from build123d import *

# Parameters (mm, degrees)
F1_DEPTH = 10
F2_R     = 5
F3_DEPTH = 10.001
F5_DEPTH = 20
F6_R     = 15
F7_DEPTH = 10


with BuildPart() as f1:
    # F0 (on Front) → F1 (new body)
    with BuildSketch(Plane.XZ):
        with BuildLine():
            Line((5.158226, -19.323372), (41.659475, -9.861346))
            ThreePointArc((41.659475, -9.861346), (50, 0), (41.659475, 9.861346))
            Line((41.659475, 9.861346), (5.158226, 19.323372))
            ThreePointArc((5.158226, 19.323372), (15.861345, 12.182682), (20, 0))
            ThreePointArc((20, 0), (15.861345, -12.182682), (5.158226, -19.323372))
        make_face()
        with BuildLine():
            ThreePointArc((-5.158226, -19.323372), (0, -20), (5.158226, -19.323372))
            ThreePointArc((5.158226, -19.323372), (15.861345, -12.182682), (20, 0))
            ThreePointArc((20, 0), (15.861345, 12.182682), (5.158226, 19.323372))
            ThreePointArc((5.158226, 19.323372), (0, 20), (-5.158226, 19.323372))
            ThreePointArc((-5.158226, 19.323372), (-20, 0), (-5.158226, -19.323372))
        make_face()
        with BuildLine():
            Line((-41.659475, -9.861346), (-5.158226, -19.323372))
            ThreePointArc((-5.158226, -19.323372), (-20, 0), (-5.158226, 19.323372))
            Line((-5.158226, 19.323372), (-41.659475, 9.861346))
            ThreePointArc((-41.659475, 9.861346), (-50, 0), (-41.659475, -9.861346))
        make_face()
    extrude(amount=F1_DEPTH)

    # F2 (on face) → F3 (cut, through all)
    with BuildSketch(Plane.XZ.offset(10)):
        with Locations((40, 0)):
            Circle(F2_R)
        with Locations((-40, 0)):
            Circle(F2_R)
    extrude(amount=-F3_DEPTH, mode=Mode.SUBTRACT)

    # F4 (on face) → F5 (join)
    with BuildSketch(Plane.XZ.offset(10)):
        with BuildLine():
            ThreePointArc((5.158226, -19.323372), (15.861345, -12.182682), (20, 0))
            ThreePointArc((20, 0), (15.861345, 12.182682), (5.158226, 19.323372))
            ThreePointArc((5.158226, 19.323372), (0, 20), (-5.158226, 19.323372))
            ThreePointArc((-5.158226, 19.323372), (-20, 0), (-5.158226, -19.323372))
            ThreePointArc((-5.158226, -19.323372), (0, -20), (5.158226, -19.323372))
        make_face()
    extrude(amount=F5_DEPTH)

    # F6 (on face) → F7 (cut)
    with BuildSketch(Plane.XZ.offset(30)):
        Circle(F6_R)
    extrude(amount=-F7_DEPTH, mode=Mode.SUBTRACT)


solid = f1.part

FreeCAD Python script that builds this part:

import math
import FreeCAD as App
import Part
import Sketcher

V = App.Vector
Q = App.Units.Quantity

doc = App.newDocument("Part")
body = doc.addObject("PartDesign::Body", "Body")

# Sketch on XZ plane
sketch1 = body.newObject("Sketcher::SketchObject", "Sketch")
sketch1.AttachmentSupport = (doc.getObject("XZ_Plane"), [""])
sketch1.MapMode = "FlatFace"
sketch1.addGeometry(Part.LineSegment(V(5, -19, 0), V(42, -10, 0)), False)
sketch1.addGeometry(Part.ArcOfCircle(Part.Circle(V(40, 0, 0), V(0, 0, 1), 10), math.radians(-80), math.radians(80)), False)
sketch1.addGeometry(Part.LineSegment(V(42, 10, 0), V(5, 19, 0)), False)
sketch1.addGeometry(Part.ArcOfCircle(Part.Circle(V(0, 0, 0), V(0, 0, 1), 20), math.radians(75), math.radians(105)), False)
sketch1.addGeometry(Part.LineSegment(V(-5, 19, 0), V(-42, 10, 0)), False)
sketch1.addGeometry(Part.ArcOfCircle(Part.Circle(V(-40, 0, 0), V(0, 0, 1), 10), math.radians(100), math.radians(260)), False)
sketch1.addGeometry(Part.LineSegment(V(-42, -10, 0), V(-5, -19, 0)), False)
sketch1.addGeometry(Part.ArcOfCircle(Part.Circle(V(0, 0, 0), V(0, 0, 1), 20), math.radians(-105), math.radians(-75)), False)
sketch1.addConstraint(Sketcher.Constraint("Coincident", 0, 2, 1, 1))
sketch1.addConstraint(Sketcher.Constraint("Coincident", 1, 2, 2, 1))
sketch1.addConstraint(Sketcher.Constraint("Coincident", 2, 2, 3, 1))
sketch1.addConstraint(Sketcher.Constraint("Coincident", 3, 2, 4, 1))
sketch1.addConstraint(Sketcher.Constraint("Coincident", 4, 2, 5, 1))
sketch1.addConstraint(Sketcher.Constraint("Coincident", 5, 2, 6, 1))
sketch1.addConstraint(Sketcher.Constraint("Coincident", 6, 2, 7, 1))
sketch1.addConstraint(Sketcher.Constraint("Coincident", 7, 2, 0, 1))
sketch1.addConstraint(Sketcher.Constraint("Coincident", 3, 3, -1, 1))
sketch1.addConstraint(Sketcher.Constraint("Coincident", 7, 3, -1, 1))
sketch1.addConstraint(Sketcher.Constraint("Equal", 1, 5))
sketch1.addConstraint(Sketcher.Constraint("Equal", 3, 7))
sketch1.addConstraint(Sketcher.Constraint("Symmetric", 1, 3, 5, 3, -1, 1))
sketch1.addConstraint(Sketcher.Constraint("Symmetric", 1, 2, 4, 2, -2))
sketch1.addConstraint(Sketcher.Constraint("Parallel", 0, 4))
sketch1.addConstraint(Sketcher.Constraint("Parallel", 2, 6))
sketch1.addConstraint(Sketcher.Constraint("Horizontal", 2, 2, 3, 2))
sketch1.addConstraint(Sketcher.Constraint("Horizontal", 0, 2, 5, 2))
sketch1.addConstraint(Sketcher.Constraint("Vertical", 0, 2, 1, 2))
sketch1.addConstraint(Sketcher.Constraint("Radius", 1, Q("10 mm")))
sketch1.addConstraint(Sketcher.Constraint("Radius", 3, Q("20.000001 mm")))
sketch1.addConstraint(Sketcher.Constraint("DistanceX", -1, 1, 1, 3, Q("40 mm")))
sketch1.addConstraint(Sketcher.Constraint("DistanceX", 3, 2, 1, 2, Q("46.817701 mm")))
sketch1.addConstraint(Sketcher.Constraint("DistanceY", -1, 1, 2, 2, Q("19.323372 mm")))
pad1 = body.newObject("PartDesign::Pad", "Pad")
pad1.Profile = sketch1
pad1.Length = 10

# Sketch on XZ plane
sketch2 = body.newObject("Sketcher::SketchObject", "Sketch001")
sketch2.AttachmentSupport = (doc.getObject("XZ_Plane"), [""])
sketch2.MapMode = "FlatFace"
sketch2.AttachmentOffset = App.Placement(V(0, 0, 10), App.Rotation())
sketch2.addGeometry(Part.Circle(V(40, 0, 0), V(0, 0, 1), 5), False)
sketch2.addGeometry(Part.Circle(V(-40, 0, 0), V(0, 0, 1), 5), False)
sketch2.addConstraint(Sketcher.Constraint("Equal", 0, 1))
sketch2.addConstraint(Sketcher.Constraint("Symmetric", 0, 3, 1, 3, -1, 1))
sketch2.addConstraint(Sketcher.Constraint("PointOnObject", 0, 3, -1))
sketch2.addConstraint(Sketcher.Constraint("Diameter", 0, Q("10 mm")))
sketch2.addConstraint(Sketcher.Constraint("DistanceX", -1, 1, 0, 3, Q("40 mm")))
pocket1 = body.newObject("PartDesign::Pocket", "Pocket")
pocket1.Profile = sketch2
pocket1.Type = "ThroughAll"

# Sketch on XZ plane
sketch3 = body.newObject("Sketcher::SketchObject", "Sketch002")
sketch3.AttachmentSupport = (doc.getObject("XZ_Plane"), [""])
sketch3.MapMode = "FlatFace"
sketch3.AttachmentOffset = App.Placement(V(0, 0, 10), App.Rotation())
sketch3.addGeometry(Part.ArcOfCircle(Part.Circle(V(0, 0, 0), V(0, 0, 1), 20), math.radians(-75), math.radians(0)), False)
sketch3.addGeometry(Part.ArcOfCircle(Part.Circle(V(0, 0, 0), V(0, 0, 1), 20), math.radians(0), math.radians(75)), False)
sketch3.addGeometry(Part.ArcOfCircle(Part.Circle(V(0, 0, 0), V(0, 0, 1), 20), math.radians(75), math.radians(105)), False)
sketch3.addGeometry(Part.ArcOfCircle(Part.Circle(V(0, 0, 0), V(0, 0, 1), 20), math.radians(105), math.radians(255)), False)
sketch3.addGeometry(Part.ArcOfCircle(Part.Circle(V(0, 0, 0), V(0, 0, 1), 20), math.radians(-105), math.radians(-75)), False)
sketch3.addConstraint(Sketcher.Constraint("Tangent", 0, 2, 1, 1))
sketch3.addConstraint(Sketcher.Constraint("Tangent", 1, 2, 2, 1))
sketch3.addConstraint(Sketcher.Constraint("Tangent", 2, 2, 3, 1))
sketch3.addConstraint(Sketcher.Constraint("Tangent", 3, 2, 4, 1))
sketch3.addConstraint(Sketcher.Constraint("Tangent", 4, 2, 0, 1))
sketch3.addConstraint(Sketcher.Constraint("Coincident", 0, 3, -1, 1))
sketch3.addConstraint(Sketcher.Constraint("Coincident", 2, 3, -1, 1))
sketch3.addConstraint(Sketcher.Constraint("PointOnObject", 0, 2, -1))
sketch3.addConstraint(Sketcher.Constraint("Horizontal", 1, 2, 2, 2))
sketch3.addConstraint(Sketcher.Constraint("Horizontal", 3, 2, 4, 2))
sketch3.addConstraint(Sketcher.Constraint("Vertical", 2, 2, 3, 2))
sketch3.addConstraint(Sketcher.Constraint("Radius", 0, Q("19.999999 mm")))
sketch3.addConstraint(Sketcher.Constraint("DistanceY", 4, 3, 1, 2, Q("19.323371 mm")))
pad2 = body.newObject("PartDesign::Pad", "Pad001")
pad2.Profile = sketch3
pad2.Length = 20

# Sketch on XZ plane
sketch4 = body.newObject("Sketcher::SketchObject", "Sketch003")
sketch4.AttachmentSupport = (doc.getObject("XZ_Plane"), [""])
sketch4.MapMode = "FlatFace"
sketch4.AttachmentOffset = App.Placement(V(0, 0, 30), App.Rotation())
sketch4.addGeometry(Part.Circle(V(0, 0, 0), V(0, 0, 1), 15), False)
sketch4.addConstraint(Sketcher.Constraint("Coincident", 0, 3, -1, 1))
sketch4.addConstraint(Sketcher.Constraint("Diameter", 0, Q("30 mm")))
pocket2 = body.newObject("PartDesign::Pocket", "Pocket001")
pocket2.Profile = sketch4
pocket2.Length = 10

doc.recompute()
